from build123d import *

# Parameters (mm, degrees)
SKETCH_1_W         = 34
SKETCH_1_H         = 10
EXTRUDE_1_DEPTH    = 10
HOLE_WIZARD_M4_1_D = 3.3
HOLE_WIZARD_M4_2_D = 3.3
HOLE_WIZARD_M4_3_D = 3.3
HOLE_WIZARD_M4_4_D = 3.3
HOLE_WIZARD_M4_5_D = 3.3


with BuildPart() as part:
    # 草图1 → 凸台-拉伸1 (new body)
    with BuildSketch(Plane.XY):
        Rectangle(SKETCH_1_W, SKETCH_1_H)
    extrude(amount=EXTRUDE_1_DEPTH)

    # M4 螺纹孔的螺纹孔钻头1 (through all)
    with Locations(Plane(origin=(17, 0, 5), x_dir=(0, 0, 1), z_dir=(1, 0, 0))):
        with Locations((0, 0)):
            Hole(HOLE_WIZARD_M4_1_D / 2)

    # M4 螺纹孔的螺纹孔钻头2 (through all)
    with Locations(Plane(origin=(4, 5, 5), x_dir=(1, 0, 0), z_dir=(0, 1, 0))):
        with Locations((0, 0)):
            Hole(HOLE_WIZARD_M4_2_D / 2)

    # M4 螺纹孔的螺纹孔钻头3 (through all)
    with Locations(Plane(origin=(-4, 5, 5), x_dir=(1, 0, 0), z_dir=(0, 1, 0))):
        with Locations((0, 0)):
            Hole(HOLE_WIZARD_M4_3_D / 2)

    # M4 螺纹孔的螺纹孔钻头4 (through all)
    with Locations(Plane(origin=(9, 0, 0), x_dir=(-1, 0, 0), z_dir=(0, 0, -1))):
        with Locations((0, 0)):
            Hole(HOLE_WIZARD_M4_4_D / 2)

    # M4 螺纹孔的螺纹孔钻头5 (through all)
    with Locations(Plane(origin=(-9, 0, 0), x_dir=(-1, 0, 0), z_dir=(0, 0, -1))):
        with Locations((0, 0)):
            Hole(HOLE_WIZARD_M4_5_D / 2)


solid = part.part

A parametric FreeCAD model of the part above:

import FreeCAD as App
import Part
import Sketcher

doc = App.newDocument("Part")
body = doc.addObject("PartDesign::Body", "Body")

sketch1 = body.newObject("Sketcher::SketchObject", "Sketch")
sketch1.AttachmentSupport = (doc.getObject("XY_Plane"), [""])
sketch1.MapMode = "FlatFace"
sketch1.addGeometry([
    Part.LineSegment(App.Vector(-17, 5, 0), App.Vector(-17, -5, 0)),
    Part.LineSegment(App.Vector(-17, -5, 0), App.Vector(17, -5, 0)),
    Part.LineSegment(App.Vector(17, -5, 0), App.Vector(17, 5, 0)),
    Part.LineSegment(App.Vector(17, 5, 0), App.Vector(-17, 5, 0)),
], False)
sketch1.addConstraint([
    Sketcher.Constraint("Coincident", 0, 2, 1, 1),
    Sketcher.Constraint("Coincident", 1, 2, 2, 1),
    Sketcher.Constraint("Coincident", 2, 2, 3, 1),
    Sketcher.Constraint("Coincident", 3, 2, 0, 1),
    Sketcher.Constraint("Vertical", 0),
    Sketcher.Constraint("Horizontal", 1),
    Sketcher.Constraint("Vertical", 2),
    Sketcher.Constraint("Horizontal", 3),
    Sketcher.Constraint("Symmetric", 0, 2, 2, 2, -1, 1),
    Sketcher.Constraint("DistanceX", 1, 1, 1, 2, 34.0),
    Sketcher.Constraint("DistanceY", 0, 2, 0, 1, 10.0),
])
pad1 = body.newObject("PartDesign::Pad", "Pad")
pad1.Profile = sketch1
pad1.Length = 10

sketch2 = body.newObject("Sketcher::SketchObject", "Sketch001")
sketch2.AttachmentSupport = (doc.getObject("YZ_Plane"), [""])
sketch2.MapMode = "FlatFace"
sketch2.AttachmentOffset = App.Placement(App.Vector(0, 0, 17), App.Rotation())
sketch2.addGeometry(Part.Circle(App.Vector(0, 5, 0), App.Vector(0, 0, 1), 1.65), False)
sketch2.addConstraint([
    Sketcher.Constraint("PointOnObject", 0, 3, -2),
    Sketcher.Constraint("Diameter", 0, 3.3),
    Sketcher.Constraint("DistanceY", -1, 1, 0, 3, 5.0),
])
doc.recompute()
hole = body.newObject("PartDesign::Hole", "Hole")
hole.Profile = sketch2
hole.ThreadType = "None"
hole.Diameter = 3.3
hole.DepthType = "ThroughAll"

sketch3 = body.newObject("Sketcher::SketchObject", "Sketch002")
sketch3.AttachmentSupport = (doc.getObject("XZ_Plane"), [""])
sketch3.MapMode = "FlatFace"
sketch3.AttachmentOffset = App.Placement(App.Vector(0, 0, -5), App.Rotation())
sketch3.addGeometry(Part.Circle(App.Vector(4, 5, 0), App.Vector(0, 0, 1), 1.65), False)
sketch3.addConstraint([
    Sketcher.Constraint("Diameter", 0, 3.3),
    Sketcher.Constraint("DistanceX", -1, 1, 0, 3, 4.0),
    Sketcher.Constraint("DistanceY", -1, 1, 0, 3, 5.0),
])
doc.recompute()
hole2 = body.newObject("PartDesign::Hole", "Hole001")
hole2.Profile = sketch3
hole2.ThreadType = "None"
hole2.Diameter = 3.3
hole2.DepthType = "ThroughAll"
hole2.Reversed = True

sketch4 = body.newObject("Sketcher::SketchObject", "Sketch003")
sketch4.AttachmentSupport = (doc.getObject("XZ_Plane"), [""])
sketch4.MapMode = "FlatFace"
sketch4.AttachmentOffset = App.Placement(App.Vector(0, 0, -5), App.Rotation())
sketch4.addGeometry(Part.Circle(App.Vector(-4, 5, 0), App.Vector(0, 0, 1), 1.65), False)
sketch4.addConstraint([
    Sketcher.Constraint("Diameter", 0, 3.3),
    Sketcher.Constraint("DistanceX", 0, 3, -1, 1, 4.0),
    Sketcher.Constraint("DistanceY", -1, 1, 0, 3, 5.0),
])
doc.recompute()
hole3 = body.newObject("PartDesign::Hole", "Hole002")
hole3.Profile = sketch4
hole3.ThreadType = "None"
hole3.Diameter = 3.3
hole3.DepthType = "ThroughAll"
hole3.Reversed = True

sketch5 = body.newObject("Sketcher::SketchObject", "Sketch004")
sketch5.AttachmentSupport = (doc.getObject("XY_Plane"), [""])
sketch5.MapMode = "FlatFace"
sketch5.addGeometry(Part.Circle(App.Vector(9, 0, 0), App.Vector(0, 0, 1), 1.65), False)
sketch5.addConstraint([
    Sketcher.Constraint("PointOnObject", 0, 3, -1),
    Sketcher.Constraint("Diameter", 0, 3.3),
    Sketcher.Constraint("DistanceX", -1, 1, 0, 3, 9.0),
])
doc.recompute()
hole4 = body.newObject("PartDesign::Hole", "Hole003")
hole4.Profile = sketch5
hole4.ThreadType = "None"
hole4.Diameter = 3.3
hole4.DepthType = "ThroughAll"
hole4.Reversed = True

sketch6 = body.newObject("Sketcher::SketchObject", "Sketch005")
sketch6.AttachmentSupport = (doc.getObject("XY_Plane"), [""])
sketch6.MapMode = "FlatFace"
sketch6.addGeometry(Part.Circle(App.Vector(-9, 0, 0), App.Vector(0, 0, 1), 1.65), False)
sketch6.addConstraint([
    Sketcher.Constraint("PointOnObject", 0, 3, -1),
    Sketcher.Constraint("Diameter", 0, 3.3),
    Sketcher.Constraint("DistanceX", 0, 3, -1, 1, 9.0),
])
doc.recompute()
hole5 = body.newObject("PartDesign::Hole", "Hole004")
hole5.Profile = sketch6
hole5.ThreadType = "None"
hole5.Diameter = 3.3
hole5.DepthType = "ThroughAll"
hole5.Reversed = True

doc.recompute()
